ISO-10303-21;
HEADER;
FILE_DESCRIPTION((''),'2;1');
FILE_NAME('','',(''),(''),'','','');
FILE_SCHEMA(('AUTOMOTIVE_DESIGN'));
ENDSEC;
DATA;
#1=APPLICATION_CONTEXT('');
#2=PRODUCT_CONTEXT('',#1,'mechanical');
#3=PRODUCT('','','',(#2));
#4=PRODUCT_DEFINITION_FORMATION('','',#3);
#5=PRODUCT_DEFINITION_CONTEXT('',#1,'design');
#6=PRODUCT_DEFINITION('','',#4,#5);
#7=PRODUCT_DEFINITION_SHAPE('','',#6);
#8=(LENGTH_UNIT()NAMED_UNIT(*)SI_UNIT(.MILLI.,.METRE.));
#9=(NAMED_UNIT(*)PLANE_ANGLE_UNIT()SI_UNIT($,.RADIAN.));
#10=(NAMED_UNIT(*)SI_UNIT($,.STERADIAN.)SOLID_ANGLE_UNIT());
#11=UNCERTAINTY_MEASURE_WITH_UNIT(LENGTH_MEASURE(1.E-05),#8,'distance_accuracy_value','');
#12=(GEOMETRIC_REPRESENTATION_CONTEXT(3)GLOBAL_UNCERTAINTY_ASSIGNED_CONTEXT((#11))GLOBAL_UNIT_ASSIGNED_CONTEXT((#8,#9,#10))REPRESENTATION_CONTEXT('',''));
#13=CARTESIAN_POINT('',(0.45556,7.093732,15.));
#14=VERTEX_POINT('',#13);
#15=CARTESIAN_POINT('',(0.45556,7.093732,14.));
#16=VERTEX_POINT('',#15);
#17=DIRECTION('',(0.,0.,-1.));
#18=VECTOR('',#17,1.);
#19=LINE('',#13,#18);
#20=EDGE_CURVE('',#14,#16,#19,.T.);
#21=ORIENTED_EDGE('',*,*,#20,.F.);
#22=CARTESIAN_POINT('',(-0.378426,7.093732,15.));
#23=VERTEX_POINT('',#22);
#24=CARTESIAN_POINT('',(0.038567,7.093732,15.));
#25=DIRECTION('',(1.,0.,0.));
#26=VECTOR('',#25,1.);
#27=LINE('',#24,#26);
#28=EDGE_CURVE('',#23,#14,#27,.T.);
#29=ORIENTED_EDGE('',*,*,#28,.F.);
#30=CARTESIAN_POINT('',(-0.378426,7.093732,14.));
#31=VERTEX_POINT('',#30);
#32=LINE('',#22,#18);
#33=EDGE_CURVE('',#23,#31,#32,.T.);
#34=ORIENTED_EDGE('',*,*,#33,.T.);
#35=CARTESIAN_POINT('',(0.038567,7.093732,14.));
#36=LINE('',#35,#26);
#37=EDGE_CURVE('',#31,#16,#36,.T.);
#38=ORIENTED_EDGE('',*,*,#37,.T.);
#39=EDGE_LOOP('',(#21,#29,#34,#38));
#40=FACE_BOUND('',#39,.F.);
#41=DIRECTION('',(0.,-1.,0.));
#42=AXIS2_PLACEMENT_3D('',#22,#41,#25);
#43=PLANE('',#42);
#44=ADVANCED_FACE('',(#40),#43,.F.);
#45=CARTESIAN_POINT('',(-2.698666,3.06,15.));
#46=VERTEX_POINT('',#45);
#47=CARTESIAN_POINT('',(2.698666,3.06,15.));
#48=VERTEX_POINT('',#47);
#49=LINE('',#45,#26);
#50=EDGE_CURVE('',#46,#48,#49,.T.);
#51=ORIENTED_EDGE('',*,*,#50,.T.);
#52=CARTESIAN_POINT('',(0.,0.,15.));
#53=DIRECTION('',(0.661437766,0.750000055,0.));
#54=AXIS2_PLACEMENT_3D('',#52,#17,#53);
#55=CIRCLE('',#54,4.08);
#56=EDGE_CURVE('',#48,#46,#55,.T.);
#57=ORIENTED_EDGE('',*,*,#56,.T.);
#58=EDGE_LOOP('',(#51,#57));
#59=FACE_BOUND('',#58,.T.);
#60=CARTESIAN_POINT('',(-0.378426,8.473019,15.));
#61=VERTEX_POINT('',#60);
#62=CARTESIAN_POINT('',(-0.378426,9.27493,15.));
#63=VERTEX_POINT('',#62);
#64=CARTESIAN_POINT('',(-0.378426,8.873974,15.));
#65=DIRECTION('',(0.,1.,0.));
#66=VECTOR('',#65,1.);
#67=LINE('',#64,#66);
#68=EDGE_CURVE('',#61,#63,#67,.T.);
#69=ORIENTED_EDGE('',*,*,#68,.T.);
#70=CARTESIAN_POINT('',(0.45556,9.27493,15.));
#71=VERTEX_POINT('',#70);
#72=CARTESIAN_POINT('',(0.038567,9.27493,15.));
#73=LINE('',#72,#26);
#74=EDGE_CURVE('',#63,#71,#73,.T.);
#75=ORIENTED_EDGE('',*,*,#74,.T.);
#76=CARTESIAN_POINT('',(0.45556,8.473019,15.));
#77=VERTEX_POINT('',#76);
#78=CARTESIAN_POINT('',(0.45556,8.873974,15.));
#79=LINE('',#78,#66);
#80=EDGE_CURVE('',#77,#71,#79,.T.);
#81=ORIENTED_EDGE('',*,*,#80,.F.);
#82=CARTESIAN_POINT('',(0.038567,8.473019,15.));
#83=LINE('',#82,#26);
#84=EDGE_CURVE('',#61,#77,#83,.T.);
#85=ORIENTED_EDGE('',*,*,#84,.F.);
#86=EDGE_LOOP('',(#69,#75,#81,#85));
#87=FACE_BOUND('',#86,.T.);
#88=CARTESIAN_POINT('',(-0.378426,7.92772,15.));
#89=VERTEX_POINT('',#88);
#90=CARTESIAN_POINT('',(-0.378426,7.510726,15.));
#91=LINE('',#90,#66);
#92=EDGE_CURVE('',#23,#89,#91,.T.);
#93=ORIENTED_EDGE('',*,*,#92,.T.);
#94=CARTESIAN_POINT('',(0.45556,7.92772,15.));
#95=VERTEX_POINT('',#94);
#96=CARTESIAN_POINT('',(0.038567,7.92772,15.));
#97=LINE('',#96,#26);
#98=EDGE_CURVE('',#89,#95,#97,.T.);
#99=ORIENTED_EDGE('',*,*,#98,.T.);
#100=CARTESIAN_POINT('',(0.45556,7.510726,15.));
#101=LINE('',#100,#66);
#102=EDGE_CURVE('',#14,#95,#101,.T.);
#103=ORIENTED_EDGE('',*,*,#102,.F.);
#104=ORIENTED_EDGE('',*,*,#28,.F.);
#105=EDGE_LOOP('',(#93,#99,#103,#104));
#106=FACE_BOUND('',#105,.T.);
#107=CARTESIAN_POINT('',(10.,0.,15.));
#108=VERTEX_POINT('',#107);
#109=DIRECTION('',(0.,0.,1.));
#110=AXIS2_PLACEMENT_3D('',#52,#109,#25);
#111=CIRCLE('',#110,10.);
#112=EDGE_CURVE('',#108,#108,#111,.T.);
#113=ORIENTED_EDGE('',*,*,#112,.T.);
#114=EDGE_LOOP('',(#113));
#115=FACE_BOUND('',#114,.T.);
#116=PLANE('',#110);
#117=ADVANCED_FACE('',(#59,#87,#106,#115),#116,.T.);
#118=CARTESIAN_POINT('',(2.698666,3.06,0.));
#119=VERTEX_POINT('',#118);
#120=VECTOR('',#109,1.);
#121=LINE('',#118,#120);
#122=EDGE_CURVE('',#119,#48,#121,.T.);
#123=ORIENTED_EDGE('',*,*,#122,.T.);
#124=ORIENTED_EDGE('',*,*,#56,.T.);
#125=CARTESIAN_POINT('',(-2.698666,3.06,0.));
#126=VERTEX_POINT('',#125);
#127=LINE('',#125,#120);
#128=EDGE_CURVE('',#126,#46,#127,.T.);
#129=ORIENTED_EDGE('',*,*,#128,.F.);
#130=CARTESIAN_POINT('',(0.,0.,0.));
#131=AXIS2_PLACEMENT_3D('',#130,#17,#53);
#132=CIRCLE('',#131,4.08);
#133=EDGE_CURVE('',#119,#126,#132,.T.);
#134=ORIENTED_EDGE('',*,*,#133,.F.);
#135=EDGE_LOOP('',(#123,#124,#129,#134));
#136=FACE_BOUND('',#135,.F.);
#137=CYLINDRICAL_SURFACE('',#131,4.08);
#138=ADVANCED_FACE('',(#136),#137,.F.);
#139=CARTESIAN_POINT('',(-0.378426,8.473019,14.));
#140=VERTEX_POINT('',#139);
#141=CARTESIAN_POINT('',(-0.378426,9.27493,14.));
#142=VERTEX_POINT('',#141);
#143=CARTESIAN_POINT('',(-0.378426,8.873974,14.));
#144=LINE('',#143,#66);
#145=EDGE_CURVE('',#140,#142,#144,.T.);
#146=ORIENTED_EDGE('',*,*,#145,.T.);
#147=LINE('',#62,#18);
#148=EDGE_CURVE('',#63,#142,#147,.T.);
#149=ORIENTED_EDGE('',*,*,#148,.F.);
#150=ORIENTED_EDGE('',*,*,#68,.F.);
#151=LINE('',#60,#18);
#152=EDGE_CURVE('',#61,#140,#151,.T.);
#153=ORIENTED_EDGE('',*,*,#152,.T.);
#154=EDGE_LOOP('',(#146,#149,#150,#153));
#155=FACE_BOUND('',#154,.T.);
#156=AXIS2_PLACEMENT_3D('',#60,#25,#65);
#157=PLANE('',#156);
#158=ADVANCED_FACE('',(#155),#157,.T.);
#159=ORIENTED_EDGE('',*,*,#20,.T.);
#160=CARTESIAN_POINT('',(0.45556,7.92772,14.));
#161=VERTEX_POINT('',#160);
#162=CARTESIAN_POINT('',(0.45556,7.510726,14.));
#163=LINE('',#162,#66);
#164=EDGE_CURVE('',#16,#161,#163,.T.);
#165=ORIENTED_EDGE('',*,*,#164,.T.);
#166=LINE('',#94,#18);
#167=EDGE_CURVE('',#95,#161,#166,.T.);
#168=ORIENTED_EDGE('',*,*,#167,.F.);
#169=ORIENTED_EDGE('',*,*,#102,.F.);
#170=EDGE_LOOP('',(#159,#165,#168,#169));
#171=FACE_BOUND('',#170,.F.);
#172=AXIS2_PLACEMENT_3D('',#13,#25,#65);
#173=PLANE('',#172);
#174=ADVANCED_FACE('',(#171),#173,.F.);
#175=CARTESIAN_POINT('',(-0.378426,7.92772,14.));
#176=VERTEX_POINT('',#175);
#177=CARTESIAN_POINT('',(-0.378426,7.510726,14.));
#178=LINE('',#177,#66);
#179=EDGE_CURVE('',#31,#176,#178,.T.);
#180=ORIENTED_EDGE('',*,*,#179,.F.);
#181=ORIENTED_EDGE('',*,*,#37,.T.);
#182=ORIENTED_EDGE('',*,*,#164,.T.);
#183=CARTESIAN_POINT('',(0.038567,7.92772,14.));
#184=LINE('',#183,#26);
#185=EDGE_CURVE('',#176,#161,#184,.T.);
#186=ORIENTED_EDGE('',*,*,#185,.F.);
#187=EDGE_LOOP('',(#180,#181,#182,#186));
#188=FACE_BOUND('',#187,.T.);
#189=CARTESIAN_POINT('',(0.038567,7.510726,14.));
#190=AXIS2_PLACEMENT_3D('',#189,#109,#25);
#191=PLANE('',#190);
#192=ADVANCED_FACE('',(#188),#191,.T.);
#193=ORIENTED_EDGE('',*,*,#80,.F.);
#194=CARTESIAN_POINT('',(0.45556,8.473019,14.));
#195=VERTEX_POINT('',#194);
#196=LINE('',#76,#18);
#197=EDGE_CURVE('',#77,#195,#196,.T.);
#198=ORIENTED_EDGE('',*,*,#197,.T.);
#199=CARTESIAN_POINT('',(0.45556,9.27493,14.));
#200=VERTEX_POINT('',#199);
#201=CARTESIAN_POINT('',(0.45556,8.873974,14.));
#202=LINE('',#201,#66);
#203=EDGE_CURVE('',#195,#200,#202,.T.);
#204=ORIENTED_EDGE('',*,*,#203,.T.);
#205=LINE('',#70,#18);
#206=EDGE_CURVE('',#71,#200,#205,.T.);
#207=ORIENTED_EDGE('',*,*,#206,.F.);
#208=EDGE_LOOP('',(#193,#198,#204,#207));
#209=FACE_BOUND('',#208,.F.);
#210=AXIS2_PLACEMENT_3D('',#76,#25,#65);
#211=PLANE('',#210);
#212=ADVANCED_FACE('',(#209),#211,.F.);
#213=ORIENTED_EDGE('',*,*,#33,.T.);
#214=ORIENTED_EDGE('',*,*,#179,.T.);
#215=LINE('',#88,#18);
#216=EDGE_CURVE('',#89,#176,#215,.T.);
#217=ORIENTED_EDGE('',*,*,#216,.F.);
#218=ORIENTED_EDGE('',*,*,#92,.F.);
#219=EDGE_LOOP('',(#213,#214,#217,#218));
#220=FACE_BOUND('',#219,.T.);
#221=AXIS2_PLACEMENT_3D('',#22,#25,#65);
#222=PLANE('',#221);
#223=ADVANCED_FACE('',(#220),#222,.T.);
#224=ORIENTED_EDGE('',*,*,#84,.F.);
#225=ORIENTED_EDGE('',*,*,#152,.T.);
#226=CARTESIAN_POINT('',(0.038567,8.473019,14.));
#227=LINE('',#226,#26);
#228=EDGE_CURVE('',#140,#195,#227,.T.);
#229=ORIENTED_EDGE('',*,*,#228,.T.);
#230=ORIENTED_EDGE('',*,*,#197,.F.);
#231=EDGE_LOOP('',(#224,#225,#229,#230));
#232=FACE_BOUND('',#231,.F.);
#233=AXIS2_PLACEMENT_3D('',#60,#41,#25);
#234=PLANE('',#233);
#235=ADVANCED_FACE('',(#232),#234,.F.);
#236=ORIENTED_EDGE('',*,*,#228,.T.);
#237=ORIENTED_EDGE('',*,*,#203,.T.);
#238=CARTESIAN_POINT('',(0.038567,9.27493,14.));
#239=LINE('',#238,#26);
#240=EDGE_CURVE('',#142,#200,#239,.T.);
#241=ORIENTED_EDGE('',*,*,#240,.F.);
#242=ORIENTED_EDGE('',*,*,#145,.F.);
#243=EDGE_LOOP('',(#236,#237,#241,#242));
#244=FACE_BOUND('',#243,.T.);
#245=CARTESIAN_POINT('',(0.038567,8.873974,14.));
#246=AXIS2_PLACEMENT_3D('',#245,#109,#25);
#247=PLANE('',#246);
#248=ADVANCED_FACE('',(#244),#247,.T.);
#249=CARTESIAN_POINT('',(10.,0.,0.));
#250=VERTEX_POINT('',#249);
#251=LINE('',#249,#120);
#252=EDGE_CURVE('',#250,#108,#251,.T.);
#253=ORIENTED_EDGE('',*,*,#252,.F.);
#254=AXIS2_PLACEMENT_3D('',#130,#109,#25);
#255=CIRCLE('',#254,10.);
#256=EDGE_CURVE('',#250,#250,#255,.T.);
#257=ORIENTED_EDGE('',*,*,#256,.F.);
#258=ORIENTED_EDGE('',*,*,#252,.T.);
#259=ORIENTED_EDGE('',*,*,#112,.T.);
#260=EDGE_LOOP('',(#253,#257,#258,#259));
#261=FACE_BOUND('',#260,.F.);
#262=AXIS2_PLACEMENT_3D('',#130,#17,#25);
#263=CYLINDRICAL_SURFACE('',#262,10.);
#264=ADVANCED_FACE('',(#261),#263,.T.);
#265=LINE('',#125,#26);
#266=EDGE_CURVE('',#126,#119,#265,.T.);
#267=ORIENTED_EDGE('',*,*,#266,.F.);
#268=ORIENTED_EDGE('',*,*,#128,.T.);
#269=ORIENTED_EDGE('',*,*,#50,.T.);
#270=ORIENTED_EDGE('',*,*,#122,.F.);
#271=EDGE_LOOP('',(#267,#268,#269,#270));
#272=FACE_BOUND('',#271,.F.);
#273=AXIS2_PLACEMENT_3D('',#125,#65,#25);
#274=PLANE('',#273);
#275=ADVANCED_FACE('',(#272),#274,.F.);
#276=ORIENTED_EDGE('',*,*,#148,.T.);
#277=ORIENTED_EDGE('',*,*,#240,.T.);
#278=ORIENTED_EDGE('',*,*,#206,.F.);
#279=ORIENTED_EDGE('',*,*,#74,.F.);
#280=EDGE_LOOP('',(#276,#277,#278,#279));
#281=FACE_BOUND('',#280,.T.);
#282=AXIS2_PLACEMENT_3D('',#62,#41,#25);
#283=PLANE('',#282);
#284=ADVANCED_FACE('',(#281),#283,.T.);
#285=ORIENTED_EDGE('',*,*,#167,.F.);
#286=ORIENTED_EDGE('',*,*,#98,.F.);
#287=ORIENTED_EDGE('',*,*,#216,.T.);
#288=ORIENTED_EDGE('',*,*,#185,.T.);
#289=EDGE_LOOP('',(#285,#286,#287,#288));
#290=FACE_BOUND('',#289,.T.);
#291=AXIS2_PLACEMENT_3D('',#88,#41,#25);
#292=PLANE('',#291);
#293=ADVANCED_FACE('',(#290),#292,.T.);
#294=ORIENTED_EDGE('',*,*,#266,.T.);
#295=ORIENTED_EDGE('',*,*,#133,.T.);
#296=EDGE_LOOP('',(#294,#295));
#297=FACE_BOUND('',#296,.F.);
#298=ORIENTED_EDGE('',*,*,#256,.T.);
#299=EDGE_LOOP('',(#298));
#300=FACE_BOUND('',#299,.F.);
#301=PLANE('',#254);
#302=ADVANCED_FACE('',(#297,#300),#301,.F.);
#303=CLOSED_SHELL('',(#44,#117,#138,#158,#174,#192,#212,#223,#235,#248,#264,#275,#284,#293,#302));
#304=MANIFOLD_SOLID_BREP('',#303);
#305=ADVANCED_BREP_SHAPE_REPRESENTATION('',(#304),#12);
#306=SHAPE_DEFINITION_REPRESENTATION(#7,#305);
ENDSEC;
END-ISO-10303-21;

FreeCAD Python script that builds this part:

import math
import FreeCAD as App
import Part
import Sketcher

doc = App.newDocument("Part")
body = doc.addObject("PartDesign::Body", "Body")

# Sketch on XY plane
sketch1 = body.newObject("Sketcher::SketchObject", "Sketch")
sketch1.AttachmentSupport = (doc.getObject("XY_Plane"), [""])
sketch1.MapMode = "FlatFace"
sketch1.addGeometry(Part.Circle(App.Vector(0, 0, 0), App.Vector(0, 0, 1), 10), False)
sketch1.addGeometry(Part.LineSegment(App.Vector(-2.7, 3.1, 0), App.Vector(2.7, 3.1, 0)), False)
sketch1.addGeometry(Part.ArcOfCircle(Part.Circle(App.Vector(0, 0, 0), App.Vector(0, 0, 1), 4.1), math.radians(131), math.radians(409)), False)
sketch1.addConstraint(Sketcher.Constraint("Coincident", 1, 1, 2, 1))
sketch1.addConstraint(Sketcher.Constraint("Coincident", 2, 2, 1, 2))
sketch1.addConstraint(Sketcher.Constraint("Horizontal", 1))
sketch1.addConstraint(Sketcher.Constraint("Coincident", 0, 3, -1, 1))
sketch1.addConstraint(Sketcher.Constraint("Coincident", 2, 3, -1, 1))
sketch1.addConstraint(Sketcher.Constraint("Diameter", 0, 20.0))
sketch1.addConstraint(Sketcher.Constraint("Radius", 2, 4.08))
sketch1.addConstraint(Sketcher.Constraint("DistanceY", -1, 1, 1, 1, 3.06))
pad1 = body.newObject("PartDesign::Pad", "Pad")
pad1.Profile = sketch1
pad1.Length = 15

# Sketch on XY plane
sketch2 = body.newObject("Sketcher::SketchObject", "Sketch001")
sketch2.AttachmentSupport = (doc.getObject("XY_Plane"), [""])
sketch2.MapMode = "FlatFace"
sketch2.AttachmentOffset = App.Placement(App.Vector(0, 0, 15), App.Rotation())
sketch2.addGeometry(Part.LineSegment(App.Vector(-0.4, 9.3, 0), App.Vector(-0.4, 8.5, 0)), False)
sketch2.addGeometry(Part.LineSegment(App.Vector(-0.4, 8.5, 0), App.Vector(0.5, 8.5, 0)), False)
sketch2.addGeometry(Part.LineSegment(App.Vector(0.5, 8.5, 0), App.Vector(0.5, 9.3, 0)), False)
sketch2.addGeometry(Part.LineSegment(App.Vector(0.5, 9.3, 0), App.Vector(-0.4, 9.3, 0)), False)
sketch2.addGeometry(Part.LineSegment(App.Vector(-0.4, 7.9, 0), App.Vector(-0.4, 7.1, 0)), False)
sketch2.addGeometry(Part.LineSegment(App.Vector(-0.4, 7.1, 0), App.Vector(0.5, 7.1, 0)), False)
sketch2.addGeometry(Part.LineSegment(App.Vector(0.5, 7.1, 0), App.Vector(0.5, 7.9, 0)), False)
sketch2.addGeometry(Part.LineSegment(App.Vector(0.5, 7.9, 0), App.Vector(-0.4, 7.9, 0)), False)
sketch2.addConstraint(Sketcher.Constraint("Coincident", 0, 2, 1, 1))
sketch2.addConstraint(Sketcher.Constraint("Coincident", 1, 2, 2, 1))
sketch2.addConstraint(Sketcher.Constraint("Coincident", 2, 2, 3, 1))
sketch2.addConstraint(Sketcher.Constraint("Coincident", 3, 2, 0, 1))
sketch2.addConstraint(Sketcher.Constraint("Coincident", 4, 2, 5, 1))
sketch2.addConstraint(Sketcher.Constraint("Coincident", 5, 2, 6, 1))
sketch2.addConstraint(Sketcher.Constraint("Coincident", 6, 2, 7, 1))
sketch2.addConstraint(Sketcher.Constraint("Coincident", 7, 2, 4, 1))
sketch2.addConstraint(Sketcher.Constraint("Vertical", 0))
sketch2.addConstraint(Sketcher.Constraint("Horizontal", 1))
sketch2.addConstraint(Sketcher.Constraint("Vertical", 2))
sketch2.addConstraint(Sketcher.Constraint("Horizontal", 3))
sketch2.addConstraint(Sketcher.Constraint("Vertical", 4))
sketch2.addConstraint(Sketcher.Constraint("Horizontal", 5))
sketch2.addConstraint(Sketcher.Constraint("Vertical", 6))
sketch2.addConstraint(Sketcher.Constraint("Horizontal", 7))
sketch2.addConstraint(Sketcher.Constraint("Vertical", 3, 2, 4, 2))
sketch2.addConstraint(Sketcher.Constraint("Vertical", 2, 2, 5, 2))
sketch2.addConstraint(Sketcher.Constraint("Equal", 7, 4))
sketch2.addConstraint(Sketcher.Constraint("DistanceY", 0, 2, 0, 1, 0.801911))
sketch2.addConstraint(Sketcher.Constraint("DistanceY", 6, 2, 1, 2, 0.545299))
sketch2.addConstraint(Sketcher.Constraint("DistanceX", 1, 1, 1, 2, 0.833987))
sketch2.addConstraint(Sketcher.Constraint("DistanceY", -1, 1, 0, 2, 8.473019))
sketch2.addConstraint(Sketcher.Constraint("DistanceX", -1, 1, 1, 2, 0.45556))
pocket1 = body.newObject("PartDesign::Pocket", "Pocket")
pocket1.Profile = sketch2
pocket1.Length = 1

doc.recompute()
